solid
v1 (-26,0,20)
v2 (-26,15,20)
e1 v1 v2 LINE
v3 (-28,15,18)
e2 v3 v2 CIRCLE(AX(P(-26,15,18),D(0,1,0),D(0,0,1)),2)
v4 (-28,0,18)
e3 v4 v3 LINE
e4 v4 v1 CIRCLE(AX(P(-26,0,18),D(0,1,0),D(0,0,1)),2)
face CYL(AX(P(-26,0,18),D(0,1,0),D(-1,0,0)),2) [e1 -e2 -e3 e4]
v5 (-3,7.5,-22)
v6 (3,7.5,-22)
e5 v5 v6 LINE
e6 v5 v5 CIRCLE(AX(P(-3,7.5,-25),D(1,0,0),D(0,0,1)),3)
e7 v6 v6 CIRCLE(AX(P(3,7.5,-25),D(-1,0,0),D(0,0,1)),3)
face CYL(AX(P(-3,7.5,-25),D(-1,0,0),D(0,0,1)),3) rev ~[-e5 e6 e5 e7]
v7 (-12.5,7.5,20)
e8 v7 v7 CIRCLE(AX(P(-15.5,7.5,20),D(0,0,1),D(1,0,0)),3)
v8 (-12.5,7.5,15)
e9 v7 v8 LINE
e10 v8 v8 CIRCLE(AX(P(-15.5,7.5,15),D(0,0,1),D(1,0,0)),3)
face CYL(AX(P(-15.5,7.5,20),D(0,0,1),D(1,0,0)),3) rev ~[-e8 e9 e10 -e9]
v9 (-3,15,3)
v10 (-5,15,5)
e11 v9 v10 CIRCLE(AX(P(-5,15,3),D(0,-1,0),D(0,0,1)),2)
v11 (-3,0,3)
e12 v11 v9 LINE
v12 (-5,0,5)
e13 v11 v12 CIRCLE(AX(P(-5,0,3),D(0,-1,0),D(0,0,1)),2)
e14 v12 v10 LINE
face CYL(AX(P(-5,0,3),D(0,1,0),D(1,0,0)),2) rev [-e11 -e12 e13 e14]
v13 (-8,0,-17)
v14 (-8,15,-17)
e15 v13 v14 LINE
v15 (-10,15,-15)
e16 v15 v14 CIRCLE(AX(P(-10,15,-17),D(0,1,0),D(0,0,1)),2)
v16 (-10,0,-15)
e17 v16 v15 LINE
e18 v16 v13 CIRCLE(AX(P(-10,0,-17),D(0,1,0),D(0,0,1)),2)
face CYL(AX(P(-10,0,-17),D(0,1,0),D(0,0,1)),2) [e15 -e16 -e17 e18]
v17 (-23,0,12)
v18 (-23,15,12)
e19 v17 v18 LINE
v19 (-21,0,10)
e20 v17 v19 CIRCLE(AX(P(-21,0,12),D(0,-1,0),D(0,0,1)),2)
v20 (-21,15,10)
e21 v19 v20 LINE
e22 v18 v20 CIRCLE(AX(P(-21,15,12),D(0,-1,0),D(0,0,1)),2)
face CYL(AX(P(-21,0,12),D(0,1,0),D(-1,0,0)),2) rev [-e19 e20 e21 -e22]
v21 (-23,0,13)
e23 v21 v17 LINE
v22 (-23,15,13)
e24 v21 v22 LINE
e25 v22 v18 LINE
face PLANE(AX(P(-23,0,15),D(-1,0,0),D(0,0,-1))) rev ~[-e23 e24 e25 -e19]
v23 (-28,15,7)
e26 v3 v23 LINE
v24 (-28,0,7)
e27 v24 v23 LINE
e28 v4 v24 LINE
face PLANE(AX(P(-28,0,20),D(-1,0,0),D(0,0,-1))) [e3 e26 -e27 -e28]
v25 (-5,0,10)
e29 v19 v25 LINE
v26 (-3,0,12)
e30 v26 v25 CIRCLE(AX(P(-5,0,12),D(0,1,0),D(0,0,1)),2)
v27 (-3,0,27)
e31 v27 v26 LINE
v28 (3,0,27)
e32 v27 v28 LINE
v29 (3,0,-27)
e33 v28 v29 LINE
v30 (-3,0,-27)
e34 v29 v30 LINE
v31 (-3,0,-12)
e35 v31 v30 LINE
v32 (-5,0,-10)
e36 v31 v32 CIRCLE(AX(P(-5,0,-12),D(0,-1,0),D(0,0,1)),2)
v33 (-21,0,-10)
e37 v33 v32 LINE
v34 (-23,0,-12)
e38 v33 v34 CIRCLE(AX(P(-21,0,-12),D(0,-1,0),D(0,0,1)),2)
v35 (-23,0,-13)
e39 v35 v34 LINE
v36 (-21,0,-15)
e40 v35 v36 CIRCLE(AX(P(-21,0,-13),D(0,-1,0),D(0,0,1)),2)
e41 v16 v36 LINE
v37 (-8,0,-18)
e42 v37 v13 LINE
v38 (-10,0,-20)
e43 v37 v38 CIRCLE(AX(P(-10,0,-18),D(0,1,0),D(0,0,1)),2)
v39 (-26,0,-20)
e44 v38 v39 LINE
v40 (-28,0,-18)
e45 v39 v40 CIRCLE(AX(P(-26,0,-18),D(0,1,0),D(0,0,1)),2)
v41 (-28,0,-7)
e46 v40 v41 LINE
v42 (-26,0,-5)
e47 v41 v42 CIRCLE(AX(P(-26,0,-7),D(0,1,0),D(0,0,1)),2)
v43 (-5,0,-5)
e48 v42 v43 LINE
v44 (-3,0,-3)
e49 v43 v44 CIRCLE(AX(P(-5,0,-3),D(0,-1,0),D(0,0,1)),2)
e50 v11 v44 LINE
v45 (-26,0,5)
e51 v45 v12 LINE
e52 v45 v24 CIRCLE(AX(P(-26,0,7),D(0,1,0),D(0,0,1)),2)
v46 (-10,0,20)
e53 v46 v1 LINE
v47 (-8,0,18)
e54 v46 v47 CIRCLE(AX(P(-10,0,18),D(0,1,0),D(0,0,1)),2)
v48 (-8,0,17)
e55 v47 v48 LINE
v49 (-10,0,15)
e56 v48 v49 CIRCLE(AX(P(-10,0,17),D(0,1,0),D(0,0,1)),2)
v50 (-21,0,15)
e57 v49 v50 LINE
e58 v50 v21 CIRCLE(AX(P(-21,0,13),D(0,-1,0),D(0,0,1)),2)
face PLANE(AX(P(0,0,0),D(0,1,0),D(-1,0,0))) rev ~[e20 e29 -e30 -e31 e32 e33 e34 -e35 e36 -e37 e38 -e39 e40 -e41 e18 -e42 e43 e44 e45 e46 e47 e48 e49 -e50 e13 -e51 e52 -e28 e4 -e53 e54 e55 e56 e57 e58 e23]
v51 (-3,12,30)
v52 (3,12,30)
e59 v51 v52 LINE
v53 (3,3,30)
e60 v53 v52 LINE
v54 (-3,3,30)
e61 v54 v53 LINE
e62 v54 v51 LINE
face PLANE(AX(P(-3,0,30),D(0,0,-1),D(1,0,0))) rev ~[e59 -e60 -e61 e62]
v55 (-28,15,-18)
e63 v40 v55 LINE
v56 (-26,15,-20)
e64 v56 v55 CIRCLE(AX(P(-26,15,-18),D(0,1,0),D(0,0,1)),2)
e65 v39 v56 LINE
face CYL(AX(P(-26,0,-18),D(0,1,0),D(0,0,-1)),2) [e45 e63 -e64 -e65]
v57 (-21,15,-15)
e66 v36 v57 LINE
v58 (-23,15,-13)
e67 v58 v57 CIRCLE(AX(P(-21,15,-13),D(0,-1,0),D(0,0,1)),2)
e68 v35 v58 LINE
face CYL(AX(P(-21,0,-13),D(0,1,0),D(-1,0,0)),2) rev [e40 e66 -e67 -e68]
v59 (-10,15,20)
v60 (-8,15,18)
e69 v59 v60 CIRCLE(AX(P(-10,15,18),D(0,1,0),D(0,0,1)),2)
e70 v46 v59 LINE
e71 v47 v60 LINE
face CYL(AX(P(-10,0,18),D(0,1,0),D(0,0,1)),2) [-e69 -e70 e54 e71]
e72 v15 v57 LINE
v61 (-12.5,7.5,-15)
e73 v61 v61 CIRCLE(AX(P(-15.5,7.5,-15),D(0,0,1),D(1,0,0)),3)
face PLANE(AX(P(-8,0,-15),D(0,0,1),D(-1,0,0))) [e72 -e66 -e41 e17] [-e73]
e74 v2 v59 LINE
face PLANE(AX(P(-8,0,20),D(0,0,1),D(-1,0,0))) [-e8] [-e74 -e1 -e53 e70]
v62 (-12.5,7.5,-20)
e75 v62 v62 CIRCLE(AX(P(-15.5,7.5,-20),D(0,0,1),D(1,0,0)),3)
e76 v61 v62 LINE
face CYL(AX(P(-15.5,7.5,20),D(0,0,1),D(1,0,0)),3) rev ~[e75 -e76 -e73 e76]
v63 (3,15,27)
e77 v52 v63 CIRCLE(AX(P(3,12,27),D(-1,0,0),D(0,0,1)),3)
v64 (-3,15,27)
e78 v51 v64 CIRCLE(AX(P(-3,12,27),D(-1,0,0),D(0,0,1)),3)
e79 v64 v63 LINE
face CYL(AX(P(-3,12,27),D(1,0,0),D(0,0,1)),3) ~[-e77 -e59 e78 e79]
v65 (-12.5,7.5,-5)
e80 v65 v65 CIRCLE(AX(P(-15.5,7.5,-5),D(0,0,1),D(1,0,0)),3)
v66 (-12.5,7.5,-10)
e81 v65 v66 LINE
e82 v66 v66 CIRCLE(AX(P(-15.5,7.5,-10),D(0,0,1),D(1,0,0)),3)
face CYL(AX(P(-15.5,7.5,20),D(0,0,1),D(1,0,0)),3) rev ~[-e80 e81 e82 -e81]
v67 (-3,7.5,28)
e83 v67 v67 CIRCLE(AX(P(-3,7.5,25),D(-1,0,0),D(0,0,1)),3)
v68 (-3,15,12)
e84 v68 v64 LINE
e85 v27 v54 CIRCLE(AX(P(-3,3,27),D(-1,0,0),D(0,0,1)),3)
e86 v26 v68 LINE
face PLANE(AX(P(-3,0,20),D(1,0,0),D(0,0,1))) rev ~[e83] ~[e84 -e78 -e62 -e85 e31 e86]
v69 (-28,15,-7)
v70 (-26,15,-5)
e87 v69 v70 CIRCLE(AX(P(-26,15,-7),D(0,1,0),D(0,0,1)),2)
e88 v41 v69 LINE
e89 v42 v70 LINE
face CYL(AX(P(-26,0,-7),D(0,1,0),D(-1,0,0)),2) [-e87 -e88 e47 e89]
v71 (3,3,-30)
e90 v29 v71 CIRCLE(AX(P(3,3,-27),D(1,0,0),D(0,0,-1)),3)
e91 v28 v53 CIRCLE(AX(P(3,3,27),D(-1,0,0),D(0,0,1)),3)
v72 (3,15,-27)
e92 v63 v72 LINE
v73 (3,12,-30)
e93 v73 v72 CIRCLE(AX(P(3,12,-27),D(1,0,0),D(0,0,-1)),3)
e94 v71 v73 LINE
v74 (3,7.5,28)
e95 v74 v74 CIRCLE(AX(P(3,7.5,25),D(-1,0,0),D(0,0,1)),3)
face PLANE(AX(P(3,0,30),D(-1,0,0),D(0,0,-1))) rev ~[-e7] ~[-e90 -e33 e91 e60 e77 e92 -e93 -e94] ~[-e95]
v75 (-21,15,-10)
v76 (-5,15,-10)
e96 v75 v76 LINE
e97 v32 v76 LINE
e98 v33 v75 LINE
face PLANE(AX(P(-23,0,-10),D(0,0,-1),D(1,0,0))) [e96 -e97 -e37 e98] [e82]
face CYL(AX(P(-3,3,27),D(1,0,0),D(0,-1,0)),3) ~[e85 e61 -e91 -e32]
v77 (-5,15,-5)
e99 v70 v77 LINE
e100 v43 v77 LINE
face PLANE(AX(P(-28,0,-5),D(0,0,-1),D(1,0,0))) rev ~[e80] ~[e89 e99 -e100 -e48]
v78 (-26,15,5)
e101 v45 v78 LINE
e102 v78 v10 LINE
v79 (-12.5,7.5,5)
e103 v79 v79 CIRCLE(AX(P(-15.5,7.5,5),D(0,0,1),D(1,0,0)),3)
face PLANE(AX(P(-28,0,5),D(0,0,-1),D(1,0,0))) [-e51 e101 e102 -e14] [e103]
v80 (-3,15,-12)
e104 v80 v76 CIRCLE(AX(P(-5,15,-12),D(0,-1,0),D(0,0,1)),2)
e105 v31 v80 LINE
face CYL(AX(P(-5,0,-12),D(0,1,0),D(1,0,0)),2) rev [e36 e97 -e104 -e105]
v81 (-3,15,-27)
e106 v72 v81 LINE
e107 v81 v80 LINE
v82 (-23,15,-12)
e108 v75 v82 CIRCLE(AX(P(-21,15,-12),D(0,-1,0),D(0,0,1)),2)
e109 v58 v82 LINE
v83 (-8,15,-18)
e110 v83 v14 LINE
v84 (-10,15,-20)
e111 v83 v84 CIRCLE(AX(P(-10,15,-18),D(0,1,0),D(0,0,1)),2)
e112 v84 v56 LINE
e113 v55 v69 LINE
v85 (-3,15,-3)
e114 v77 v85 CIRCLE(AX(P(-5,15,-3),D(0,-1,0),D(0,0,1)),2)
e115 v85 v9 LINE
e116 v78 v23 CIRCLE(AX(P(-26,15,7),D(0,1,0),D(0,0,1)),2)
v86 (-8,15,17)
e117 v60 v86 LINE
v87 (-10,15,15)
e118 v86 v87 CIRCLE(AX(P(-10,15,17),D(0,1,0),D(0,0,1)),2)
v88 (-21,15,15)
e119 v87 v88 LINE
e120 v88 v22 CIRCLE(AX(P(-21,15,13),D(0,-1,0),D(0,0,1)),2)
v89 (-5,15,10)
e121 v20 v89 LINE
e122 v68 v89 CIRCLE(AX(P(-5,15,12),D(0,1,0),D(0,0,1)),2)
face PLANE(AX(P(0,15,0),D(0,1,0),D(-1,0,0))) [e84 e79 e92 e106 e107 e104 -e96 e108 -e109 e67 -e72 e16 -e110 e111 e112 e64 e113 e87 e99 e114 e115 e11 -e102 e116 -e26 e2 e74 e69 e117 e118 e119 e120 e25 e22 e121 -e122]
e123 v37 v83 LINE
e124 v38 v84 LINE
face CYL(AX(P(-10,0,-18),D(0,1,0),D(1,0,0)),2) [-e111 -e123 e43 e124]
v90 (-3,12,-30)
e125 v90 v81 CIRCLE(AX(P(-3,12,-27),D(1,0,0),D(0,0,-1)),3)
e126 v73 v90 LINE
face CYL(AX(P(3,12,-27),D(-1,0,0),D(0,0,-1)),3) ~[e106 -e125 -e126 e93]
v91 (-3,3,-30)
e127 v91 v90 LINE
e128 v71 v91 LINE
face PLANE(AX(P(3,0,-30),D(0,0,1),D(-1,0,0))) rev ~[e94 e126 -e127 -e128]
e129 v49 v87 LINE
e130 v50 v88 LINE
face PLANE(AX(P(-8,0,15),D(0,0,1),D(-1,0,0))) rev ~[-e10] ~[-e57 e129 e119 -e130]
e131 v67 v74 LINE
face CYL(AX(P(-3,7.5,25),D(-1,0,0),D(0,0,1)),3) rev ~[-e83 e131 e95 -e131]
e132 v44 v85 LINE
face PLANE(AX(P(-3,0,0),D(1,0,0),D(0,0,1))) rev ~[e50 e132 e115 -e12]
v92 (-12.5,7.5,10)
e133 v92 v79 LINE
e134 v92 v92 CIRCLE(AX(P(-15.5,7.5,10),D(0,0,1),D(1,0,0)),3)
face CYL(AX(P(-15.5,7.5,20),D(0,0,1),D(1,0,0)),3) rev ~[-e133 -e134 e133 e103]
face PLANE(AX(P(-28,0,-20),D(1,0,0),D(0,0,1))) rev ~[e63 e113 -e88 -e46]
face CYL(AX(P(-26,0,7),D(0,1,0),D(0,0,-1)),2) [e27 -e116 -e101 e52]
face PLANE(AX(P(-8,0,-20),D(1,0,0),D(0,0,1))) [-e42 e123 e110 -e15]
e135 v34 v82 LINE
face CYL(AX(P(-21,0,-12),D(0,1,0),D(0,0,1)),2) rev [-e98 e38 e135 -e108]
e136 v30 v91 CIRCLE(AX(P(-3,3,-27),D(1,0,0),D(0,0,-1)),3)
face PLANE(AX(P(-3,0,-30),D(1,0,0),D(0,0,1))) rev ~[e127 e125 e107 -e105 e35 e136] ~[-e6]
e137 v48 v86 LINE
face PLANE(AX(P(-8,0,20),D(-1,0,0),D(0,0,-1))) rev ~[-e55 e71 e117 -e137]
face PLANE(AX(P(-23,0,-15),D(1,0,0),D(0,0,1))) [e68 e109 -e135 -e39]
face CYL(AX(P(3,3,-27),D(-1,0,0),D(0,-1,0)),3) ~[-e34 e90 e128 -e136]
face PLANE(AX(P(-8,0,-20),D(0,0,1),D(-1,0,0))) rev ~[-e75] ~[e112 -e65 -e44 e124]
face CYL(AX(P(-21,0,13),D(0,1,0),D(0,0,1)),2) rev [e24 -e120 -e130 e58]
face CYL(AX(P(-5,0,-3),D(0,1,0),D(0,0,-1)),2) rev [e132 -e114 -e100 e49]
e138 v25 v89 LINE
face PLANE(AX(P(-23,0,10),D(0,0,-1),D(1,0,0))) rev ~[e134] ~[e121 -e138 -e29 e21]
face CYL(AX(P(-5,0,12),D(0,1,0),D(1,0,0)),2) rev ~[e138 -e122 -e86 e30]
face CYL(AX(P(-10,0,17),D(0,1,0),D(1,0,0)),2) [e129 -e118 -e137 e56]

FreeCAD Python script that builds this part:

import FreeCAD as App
import Part
import Sketcher


def edges_at(feature, points):
    """Names of the edges that pass closest to the given points."""
    edges = feature.Shape.Edges
    near = lambda p: min(range(len(edges)), key=lambda i: edges[i].distToShape(Part.Vertex(*p))[0])
    return sorted({f"Edge{near(p) + 1}" for p in points})


def add_polygon(sketch, points):
    """Adds a closed chain of lines whose ends are joined by coincident constraints."""
    first, n = sketch.GeometryCount, len(points)
    for a, b in zip(points, points[1:] + points[:1]):
        sketch.addGeometry(Part.LineSegment(App.Vector(*a, 0), App.Vector(*b, 0)), False)
    for i in range(n):
        sketch.addConstraint(Sketcher.Constraint("Coincident", first + i, 2, first + (i + 1) % n, 1))

doc = App.newDocument("Part")
body = doc.addObject("PartDesign::Body", "Body")

# Sketch on XZ plane
sketch1 = doc.addObject("Sketcher::SketchObject", "Sketch")
body.addObject(sketch1)
sketch1.AttachmentSupport = (doc.XZ_Plane, [""])
sketch1.MapMode = "FlatFace"
add_polygon(sketch1, [(3, 30), (3, -30), (-3, -30), (-3, -10), (-23, -10), (-23, -15), (-8, -15), (-8, -20), (-28, -20), (-28, -5), (-3, -5), (-3, 5), (-28, 5), (-28, 20), (-8, 20), (-8, 15), (-23, 15), (-23, 10), (-3, 10), (-3, 30)])  # lines 0-19
sketch1.addConstraint([
    Sketcher.Constraint("Vertical", 0),
    Sketcher.Constraint("Horizontal", 1),
    Sketcher.Constraint("Vertical", 2),
    Sketcher.Constraint("Horizontal", 3),
    Sketcher.Constraint("Vertical", 4),
    Sketcher.Constraint("Horizontal", 5),
    Sketcher.Constraint("Vertical", 6),
    Sketcher.Constraint("Horizontal", 7),
    Sketcher.Constraint("Vertical", 8),
    Sketcher.Constraint("Horizontal", 9),
    Sketcher.Constraint("Vertical", 10),
    Sketcher.Constraint("Horizontal", 11),
    Sketcher.Constraint("Vertical", 12),
    Sketcher.Constraint("Horizontal", 13),
    Sketcher.Constraint("Vertical", 14),
    Sketcher.Constraint("Horizontal", 15),
    Sketcher.Constraint("Vertical", 16),
    Sketcher.Constraint("Horizontal", 17),
    Sketcher.Constraint("Vertical", 18),
    Sketcher.Constraint("Horizontal", 19),
    Sketcher.Constraint("Symmetric", 0, 2, 18, 2, -1, 1),
    Sketcher.Constraint("Symmetric", 8, 2, 11, 2, -1),
    Sketcher.Constraint("Symmetric", 6, 2, 13, 2, -1),
    Sketcher.Constraint("Symmetric", 4, 2, 15, 2, -1),
    Sketcher.Constraint("Symmetric", 2, 2, 17, 2, -1),
    Sketcher.Constraint("Vertical", 2, 2, 9, 2),
    Sketcher.Constraint("Equal", 3, 7),
    Sketcher.Constraint("Equal", 17, 2),
    Sketcher.Constraint("Equal", 4, 6),
    Sketcher.Constraint("Equal", 15, 8),
    Sketcher.Constraint("DistanceX", 1, 2, 1, 1, 6.0),
    Sketcher.Constraint("DistanceX", 3, 2, 3, 1, 20.0),
    Sketcher.Constraint("DistanceX", 5, 1, 5, 2, 15.0),
    Sketcher.Constraint("DistanceY", 0, 2, 0, 1, 60.0),
    Sketcher.Constraint("DistanceY", 4, 2, 4, 1, 5.0),
])
pad1 = doc.addObject("PartDesign::Pad", "Pad")
body.addObject(pad1)
pad1.Profile = sketch1
pad1.Length = 15
pad1.Reversed = True

# Sketch on XY plane
sketch2 = doc.addObject("Sketcher::SketchObject", "Sketch001")
body.addObject(sketch2)
sketch2.AttachmentSupport = (doc.XY_Plane, [""])
sketch2.MapMode = "FlatFace"
sketch2.AttachmentOffset = App.Placement(App.Vector(0, 0, 20), App.Rotation())
sketch2.addGeometry(Part.Circle(App.Vector(-15.5, 7.5, 0), App.Vector(0, 0, 1), 3), False)
sketch2.addConstraint([
    Sketcher.Constraint("Diameter", 0, 6.0),
    Sketcher.Constraint("DistanceY", -1, 1, 0, 3, 7.5),
    Sketcher.Constraint("DistanceX", 0, 3, -1, 1, 15.5),
])
pocket1 = doc.addObject("PartDesign::Pocket", "Pocket")
body.addObject(pocket1)
pocket1.Profile = sketch2
pocket1.Type = "ThroughAll"
doc.recompute()

fillet = doc.addObject("PartDesign::Fillet", "Fillet")
body.addObject(fillet)
fillet.Base = (pocket1, edges_at(pocket1, [
    (-8, 7.5, 20),
    (-8, 7.5, 15),
    (-3, 7.5, 10),
    (-28, 7.5, 20),
    (-28, 7.5, 5),
    (-23, 7.5, 10),
    (-23, 7.5, 15),
    (-23, 7.5, -15),
    (-23, 7.5, -10),
    (-28, 7.5, -5),
    (-28, 7.5, -20),
    (-8, 7.5, -20),
    (-8, 7.5, -15),
    (-3, 7.5, -10),
    (-3, 7.5, 5),
    (-3, 7.5, -5),
]))
fillet.Radius = 2

# Sketch on YZ plane
sketch3 = doc.addObject("Sketcher::SketchObject", "Sketch002")
body.addObject(sketch3)
sketch3.AttachmentSupport = (doc.YZ_Plane, [""])
sketch3.MapMode = "FlatFace"
sketch3.AttachmentOffset = App.Placement(App.Vector(0, 0, -3), App.Rotation())
sketch3.addGeometry([
    Part.Circle(App.Vector(7.5, 25, 0), App.Vector(0, 0, 1), 3),
    Part.Circle(App.Vector(7.5, -25, 0), App.Vector(0, 0, 1), 3),
], False)
sketch3.addConstraint([
    Sketcher.Constraint("Equal", 0, 1),
    Sketcher.Constraint("Symmetric", 0, 3, 1, 3, -1),
    Sketcher.Constraint("Diameter", 0, 6.0),
    Sketcher.Constraint("DistanceY", -1, 1, 0, 3, 25.0),
    Sketcher.Constraint("DistanceX", -1, 1, 0, 3, 7.5),
])
pocket2 = doc.addObject("PartDesign::Pocket", "Pocket001")
body.addObject(pocket2)
pocket2.Profile = sketch3
pocket2.Type = "ThroughAll"
pocket2.Reversed = True
doc.recompute()

fillet2 = doc.addObject("PartDesign::Fillet", "Fillet001")
body.addObject(fillet2)
fillet2.Base = (pocket2, edges_at(pocket2, [
    (0, 15, 30),
    (0, 15, -30),
    (0, 0, -30),
    (0, 0, 30),
]))
fillet2.Radius = 3

doc.recompute()
